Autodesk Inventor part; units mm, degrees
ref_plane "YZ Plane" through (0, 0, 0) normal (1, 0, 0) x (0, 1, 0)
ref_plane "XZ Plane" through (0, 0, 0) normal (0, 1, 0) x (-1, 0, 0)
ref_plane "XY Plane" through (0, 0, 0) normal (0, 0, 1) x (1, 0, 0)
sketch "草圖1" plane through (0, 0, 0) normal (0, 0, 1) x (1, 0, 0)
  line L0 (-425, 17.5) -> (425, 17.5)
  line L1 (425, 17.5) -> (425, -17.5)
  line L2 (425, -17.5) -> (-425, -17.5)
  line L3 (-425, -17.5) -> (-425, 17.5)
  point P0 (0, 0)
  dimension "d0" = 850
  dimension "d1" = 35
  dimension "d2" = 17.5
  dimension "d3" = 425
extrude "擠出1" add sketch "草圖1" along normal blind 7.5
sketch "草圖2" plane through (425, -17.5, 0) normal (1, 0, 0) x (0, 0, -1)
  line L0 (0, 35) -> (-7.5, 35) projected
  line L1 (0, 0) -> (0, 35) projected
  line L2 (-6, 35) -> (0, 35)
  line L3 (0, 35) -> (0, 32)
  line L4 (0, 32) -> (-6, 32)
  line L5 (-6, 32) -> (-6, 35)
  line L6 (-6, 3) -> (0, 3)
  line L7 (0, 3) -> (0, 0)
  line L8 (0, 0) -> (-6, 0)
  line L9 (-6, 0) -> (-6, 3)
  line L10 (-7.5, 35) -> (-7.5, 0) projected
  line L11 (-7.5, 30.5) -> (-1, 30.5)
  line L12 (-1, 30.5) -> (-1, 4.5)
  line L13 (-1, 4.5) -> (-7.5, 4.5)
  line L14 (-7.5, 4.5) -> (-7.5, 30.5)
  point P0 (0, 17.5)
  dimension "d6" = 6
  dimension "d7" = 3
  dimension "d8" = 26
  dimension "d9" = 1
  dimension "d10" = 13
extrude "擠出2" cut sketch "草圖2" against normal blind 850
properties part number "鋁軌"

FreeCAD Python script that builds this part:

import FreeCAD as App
import Part
import Sketcher
Q = App.Units.Quantity

doc = App.newDocument("Part")
params = doc.addObject("Spreadsheet::Sheet", "Params")
for row, (alias, value) in enumerate([
    ("sketch1_width", "850 mm"),
    ("sketch1_height", "35 mm"),
    ("pad1_length", "7.5 mm"),
    ("sketch2_width", "3 mm"),
    ("sketch2_width2", "26 mm"),
    ("sketch2_height", "6 mm"),
    ("sketch2_height2", "6.5 mm"),
    ("pocket1_length", "850 mm"),
], start=1):
    params.set(f"A{row}", alias)
    params.set(f"B{row}", "=" + value)
    params.setAlias(f"B{row}", alias)

body = doc.addObject("PartDesign::Body", "Body")

# Sketch on XY plane
sketch1 = doc.addObject("Sketcher::SketchObject", "Sketch")
body.addObject(sketch1)
sketch1.AttachmentSupport = (doc.XY_Plane, [""])
sketch1.MapMode = "FlatFace"
sketch1.addGeometry(Part.LineSegment(App.Vector(425, 17.5, 0), App.Vector(-425, 17.5, 0)), False)
sketch1.addGeometry(Part.LineSegment(App.Vector(-425, 17.5, 0), App.Vector(-425, -17.5, 0)), False)
sketch1.addGeometry(Part.LineSegment(App.Vector(-425, -17.5, 0), App.Vector(425, -17.5, 0)), False)
sketch1.addGeometry(Part.LineSegment(App.Vector(425, -17.5, 0), App.Vector(425, 17.5, 0)), False)
sketch1.addConstraint(Sketcher.Constraint("Coincident", 0, 2, 1, 1))
sketch1.addConstraint(Sketcher.Constraint("Coincident", 1, 2, 2, 1))
sketch1.addConstraint(Sketcher.Constraint("Coincident", 2, 2, 3, 1))
sketch1.addConstraint(Sketcher.Constraint("Coincident", 3, 2, 0, 1))
sketch1.addConstraint(Sketcher.Constraint("Horizontal", 0))
sketch1.addConstraint(Sketcher.Constraint("Vertical", 1))
sketch1.addConstraint(Sketcher.Constraint("Horizontal", 2))
sketch1.addConstraint(Sketcher.Constraint("Vertical", 3))
sketch1.addConstraint(Sketcher.Constraint("Symmetric", 0, 2, 2, 2, -1, 1))
sketch1.addConstraint(Sketcher.Constraint("DistanceX", 0, 2, 0, 1, Q("850 mm")))
sketch1.addConstraint(Sketcher.Constraint("DistanceY", 1, 2, 1, 1, Q("35 mm")))
sketch1.setExpression("Constraints[9]", "Params.sketch1_width")
sketch1.setExpression("Constraints[10]", "Params.sketch1_height")
pad1 = doc.addObject("PartDesign::Pad", "Pad")
body.addObject(pad1)
pad1.Profile = sketch1
pad1.setExpression("Length", "Params.pad1_length")

# Sketch on YZ plane
sketch2 = doc.addObject("Sketcher::SketchObject", "Sketch001")
body.addObject(sketch2)
sketch2.AttachmentSupport = (doc.YZ_Plane, [""])
sketch2.MapMode = "FlatFace"
sketch2.AttachmentOffset = App.Placement(App.Vector(0, 0, 425), App.Rotation())
sketch2.addGeometry(Part.LineSegment(App.Vector(14.5, 0, 0), App.Vector(17.5, 0, 0)), False)
sketch2.addGeometry(Part.LineSegment(App.Vector(17.5, 0, 0), App.Vector(17.5, 6, 0)), False)
sketch2.addGeometry(Part.LineSegment(App.Vector(17.5, 6, 0), App.Vector(14.5, 6, 0)), False)
sketch2.addGeometry(Part.LineSegment(App.Vector(14.5, 6, 0), App.Vector(14.5, 0, 0)), False)
sketch2.addGeometry(Part.LineSegment(App.Vector(-17.5, 0, 0), App.Vector(-14.5, 0, 0)), False)
sketch2.addGeometry(Part.LineSegment(App.Vector(-14.5, 0, 0), App.Vector(-14.5, 6, 0)), False)
sketch2.addGeometry(Part.LineSegment(App.Vector(-14.5, 6, 0), App.Vector(-17.5, 6, 0)), False)
sketch2.addGeometry(Part.LineSegment(App.Vector(-17.5, 6, 0), App.Vector(-17.5, 0, 0)), False)
sketch2.addGeometry(Part.LineSegment(App.Vector(13, 1, 0), App.Vector(13, 7.5, 0)), False)
sketch2.addGeometry(Part.LineSegment(App.Vector(13, 7.5, 0), App.Vector(-13, 7.5, 0)), False)
sketch2.addGeometry(Part.LineSegment(App.Vector(-13, 7.5, 0), App.Vector(-13, 1, 0)), False)
sketch2.addGeometry(Part.LineSegment(App.Vector(-13, 1, 0), App.Vector(13, 1, 0)), False)
sketch2.addConstraint(Sketcher.Constraint("Coincident", 0, 2, 1, 1))
sketch2.addConstraint(Sketcher.Constraint("Coincident", 1, 2, 2, 1))
sketch2.addConstraint(Sketcher.Constraint("Coincident", 2, 2, 3, 1))
sketch2.addConstraint(Sketcher.Constraint("Coincident", 3, 2, 0, 1))
sketch2.addConstraint(Sketcher.Constraint("Coincident", 4, 2, 5, 1))
sketch2.addConstraint(Sketcher.Constraint("Coincident", 5, 2, 6, 1))
sketch2.addConstraint(Sketcher.Constraint("Coincident", 6, 2, 7, 1))
sketch2.addConstraint(Sketcher.Constraint("Coincident", 7, 2, 4, 1))
sketch2.addConstraint(Sketcher.Constraint("Coincident", 8, 2, 9, 1))
sketch2.addConstraint(Sketcher.Constraint("Coincident", 9, 2, 10, 1))
sketch2.addConstraint(Sketcher.Constraint("Coincident", 10, 2, 11, 1))
sketch2.addConstraint(Sketcher.Constraint("Coincident", 11, 2, 8, 1))
sketch2.addConstraint(Sketcher.Constraint("Horizontal", 0))
sketch2.addConstraint(Sketcher.Constraint("Vertical", 1))
sketch2.addConstraint(Sketcher.Constraint("Horizontal", 2))
sketch2.addConstraint(Sketcher.Constraint("Vertical", 3))
sketch2.addConstraint(Sketcher.Constraint("Horizontal", 4))
sketch2.addConstraint(Sketcher.Constraint("Vertical", 5))
sketch2.addConstraint(Sketcher.Constraint("Horizontal", 6))
sketch2.addConstraint(Sketcher.Constraint("Vertical", 7))
sketch2.addConstraint(Sketcher.Constraint("Vertical", 8))
sketch2.addConstraint(Sketcher.Constraint("Horizontal", 9))
sketch2.addConstraint(Sketcher.Constraint("Vertical", 10))
sketch2.addConstraint(Sketcher.Constraint("Horizontal", 11))
sketch2.addConstraint(Sketcher.Constraint("Symmetric", 3, 2, 4, 2, -1, 1))
sketch2.addConstraint(Sketcher.Constraint("Symmetric", 1, 2, 6, 2, -2))
sketch2.addConstraint(Sketcher.Constraint("PointOnObject", 0, 2, -1))
sketch2.addConstraint(Sketcher.Constraint("DistanceX", 0, 1, 0, 2, Q("3 mm")))
sketch2.addConstraint(Sketcher.Constraint("DistanceX", 9, 2, 9, 1, Q("26 mm")))
sketch2.addConstraint(Sketcher.Constraint("DistanceY", 1, 1, 1, 2, Q("6 mm")))
sketch2.addConstraint(Sketcher.Constraint("DistanceX", -1, 1, 8, 2, Q("13 mm")))
sketch2.addConstraint(Sketcher.Constraint("DistanceY", -1, 1, 10, 2, Q("1 mm")))
sketch2.addConstraint(Sketcher.Constraint("DistanceY", 8, 1, 8, 2, Q("6.5 mm")))
sketch2.addConstraint(Sketcher.Constraint("DistanceX", 4, 2, 3, 2, Q("29 mm")))
sketch2.setExpression("Constraints[27]", "Params.sketch2_width")
sketch2.setExpression("Constraints[28]", "Params.sketch2_width2")
sketch2.setExpression("Constraints[29]", "Params.sketch2_height")
sketch2.setExpression("Constraints[32]", "Params.sketch2_height2")
pocket1 = doc.addObject("PartDesign::Pocket", "Pocket")
body.addObject(pocket1)
pocket1.Profile = sketch2
pocket1.setExpression("Length", "Params.pocket1_length")

doc.recompute()
